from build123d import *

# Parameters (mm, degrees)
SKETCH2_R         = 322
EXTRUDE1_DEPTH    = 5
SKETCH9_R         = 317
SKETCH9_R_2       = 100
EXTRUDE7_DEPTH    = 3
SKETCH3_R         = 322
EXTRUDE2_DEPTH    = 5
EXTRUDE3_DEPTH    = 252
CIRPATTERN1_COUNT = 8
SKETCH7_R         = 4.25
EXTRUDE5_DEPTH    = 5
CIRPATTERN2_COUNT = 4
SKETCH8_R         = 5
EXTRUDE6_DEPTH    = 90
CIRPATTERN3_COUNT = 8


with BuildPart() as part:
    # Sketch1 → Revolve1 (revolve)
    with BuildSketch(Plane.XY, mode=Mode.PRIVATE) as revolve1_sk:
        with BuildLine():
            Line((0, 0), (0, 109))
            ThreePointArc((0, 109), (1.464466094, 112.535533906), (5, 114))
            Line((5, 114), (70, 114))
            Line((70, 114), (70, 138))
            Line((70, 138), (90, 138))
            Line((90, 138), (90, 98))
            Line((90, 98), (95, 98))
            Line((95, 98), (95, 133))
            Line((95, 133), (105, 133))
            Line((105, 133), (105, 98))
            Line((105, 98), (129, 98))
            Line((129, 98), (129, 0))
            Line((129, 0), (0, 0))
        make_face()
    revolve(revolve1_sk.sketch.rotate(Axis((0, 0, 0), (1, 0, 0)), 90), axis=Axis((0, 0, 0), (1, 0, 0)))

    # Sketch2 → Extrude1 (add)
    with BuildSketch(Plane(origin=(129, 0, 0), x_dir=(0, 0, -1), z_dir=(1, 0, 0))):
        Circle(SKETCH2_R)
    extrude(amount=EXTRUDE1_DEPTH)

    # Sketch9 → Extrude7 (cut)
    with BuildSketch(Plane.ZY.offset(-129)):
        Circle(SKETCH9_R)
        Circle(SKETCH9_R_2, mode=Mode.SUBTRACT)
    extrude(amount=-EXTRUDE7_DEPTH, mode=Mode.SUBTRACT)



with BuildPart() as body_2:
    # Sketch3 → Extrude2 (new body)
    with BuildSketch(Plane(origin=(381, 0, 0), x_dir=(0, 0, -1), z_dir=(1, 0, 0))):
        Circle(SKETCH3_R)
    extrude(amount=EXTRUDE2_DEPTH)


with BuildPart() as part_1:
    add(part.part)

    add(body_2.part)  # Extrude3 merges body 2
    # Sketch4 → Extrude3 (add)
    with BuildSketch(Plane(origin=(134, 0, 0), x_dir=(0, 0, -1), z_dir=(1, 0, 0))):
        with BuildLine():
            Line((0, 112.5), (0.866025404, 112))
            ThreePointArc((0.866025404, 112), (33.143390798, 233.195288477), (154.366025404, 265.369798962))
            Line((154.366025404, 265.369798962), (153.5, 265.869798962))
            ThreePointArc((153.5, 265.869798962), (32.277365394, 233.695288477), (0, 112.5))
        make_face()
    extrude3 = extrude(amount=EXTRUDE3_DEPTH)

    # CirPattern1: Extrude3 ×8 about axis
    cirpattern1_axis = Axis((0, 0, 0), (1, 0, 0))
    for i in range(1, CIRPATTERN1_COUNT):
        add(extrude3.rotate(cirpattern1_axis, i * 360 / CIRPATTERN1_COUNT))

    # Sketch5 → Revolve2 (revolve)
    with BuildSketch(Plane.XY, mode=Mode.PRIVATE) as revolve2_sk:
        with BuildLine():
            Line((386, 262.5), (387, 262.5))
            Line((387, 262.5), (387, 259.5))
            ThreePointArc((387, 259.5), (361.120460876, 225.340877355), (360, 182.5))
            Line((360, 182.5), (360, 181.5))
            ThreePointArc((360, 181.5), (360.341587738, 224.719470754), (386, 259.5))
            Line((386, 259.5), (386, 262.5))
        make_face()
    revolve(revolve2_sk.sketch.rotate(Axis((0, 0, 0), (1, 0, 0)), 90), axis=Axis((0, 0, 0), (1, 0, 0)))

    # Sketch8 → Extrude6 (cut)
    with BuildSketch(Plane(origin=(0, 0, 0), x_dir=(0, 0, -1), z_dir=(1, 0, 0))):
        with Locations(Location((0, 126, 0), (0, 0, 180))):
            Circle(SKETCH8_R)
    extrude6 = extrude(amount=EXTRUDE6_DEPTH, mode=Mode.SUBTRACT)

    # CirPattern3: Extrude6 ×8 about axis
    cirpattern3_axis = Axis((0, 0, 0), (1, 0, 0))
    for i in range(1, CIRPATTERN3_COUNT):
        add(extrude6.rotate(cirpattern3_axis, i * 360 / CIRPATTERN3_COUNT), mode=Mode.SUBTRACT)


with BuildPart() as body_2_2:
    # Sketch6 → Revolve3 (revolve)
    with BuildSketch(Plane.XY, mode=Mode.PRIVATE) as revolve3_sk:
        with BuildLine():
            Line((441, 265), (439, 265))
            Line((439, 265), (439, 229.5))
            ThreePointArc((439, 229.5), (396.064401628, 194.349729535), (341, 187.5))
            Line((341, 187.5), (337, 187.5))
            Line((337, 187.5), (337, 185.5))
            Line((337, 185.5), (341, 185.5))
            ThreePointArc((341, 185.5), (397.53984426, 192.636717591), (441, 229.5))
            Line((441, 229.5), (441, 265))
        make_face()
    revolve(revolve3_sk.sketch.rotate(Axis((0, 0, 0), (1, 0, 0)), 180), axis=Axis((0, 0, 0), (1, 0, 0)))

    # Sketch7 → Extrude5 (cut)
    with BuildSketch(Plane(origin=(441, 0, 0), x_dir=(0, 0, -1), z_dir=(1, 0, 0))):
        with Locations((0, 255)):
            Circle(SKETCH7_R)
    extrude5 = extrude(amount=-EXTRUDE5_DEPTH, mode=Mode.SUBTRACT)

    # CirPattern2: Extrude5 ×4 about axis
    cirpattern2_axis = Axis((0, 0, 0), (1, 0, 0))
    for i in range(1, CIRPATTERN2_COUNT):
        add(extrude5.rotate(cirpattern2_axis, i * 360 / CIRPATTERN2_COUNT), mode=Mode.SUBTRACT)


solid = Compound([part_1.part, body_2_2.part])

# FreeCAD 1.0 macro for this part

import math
import FreeCAD as App
import Part
import Sketcher
Q = App.Units.Quantity

doc = App.newDocument("Part")
params = doc.addObject("Spreadsheet::Sheet", "Params")
for row, (alias, value) in enumerate([
    ("sketch1_radius", "5 mm"),
    ("sketch1_width", "129 mm"),
    ("sketch1_width2", "24 mm"),
    ("sketch1_width3", "10 mm"),
    ("sketch1_width4", "5 mm"),
    ("revolution_angle", "360 deg"),
    ("sketch2_diameter", "644 mm"),
    ("pad1_length", "5 mm"),
    ("sketch3_diameter", "634 mm"),
    ("sketch3_diameter2", "200 mm"),
    ("pocket1_length", "3 mm"),
    ("sketch4_diameter", "644 mm"),
    ("pad2_length", "5 mm"),
    ("sketch5_radius", "125 mm"),
    ("sketch5_length", "1 mm"),
    ("pad3_length", "252 mm"),
    ("sketch6_radius", "70 mm"),
    ("sketch6_width", "1 mm"),
    ("sketch6_height", "3 mm"),
    ("revolution2_angle", "360 deg"),
    ("sketch7_diameter", "10 mm"),
    ("pocket2_length", "90 mm"),
    ("sketch8_radius", "100 mm"),
    ("sketch8_width", "2 mm"),
    ("sketch8_width2", "4 mm"),
    ("sketch8_height", "35.5 mm"),
    ("revolution3_angle", "360 deg"),
    ("sketch9_diameter", "8.5 mm"),
    ("pocket3_length", "5 mm"),
], start=1):
    params.set(f"A{row}", alias)
    params.set(f"B{row}", "=" + value)
    params.setAlias(f"B{row}", alias)

body = doc.addObject("PartDesign::Body", "Body")

# Sketch on XY plane
sketch1 = doc.addObject("Sketcher::SketchObject", "Sketch")
body.addObject(sketch1)
sketch1.AttachmentSupport = (doc.XY_Plane, [""])
sketch1.MapMode = "FlatFace"
sketch1.addGeometry(Part.LineSegment(App.Vector(0, 109, 0), App.Vector(0, 0, 0)), False)
sketch1.addGeometry(Part.LineSegment(App.Vector(0, 0, 0), App.Vector(129, 0, 0)), False)
sketch1.addGeometry(Part.LineSegment(App.Vector(129, 0, 0), App.Vector(129, 98, 0)), False)
sketch1.addGeometry(Part.LineSegment(App.Vector(129, 98, 0), App.Vector(105, 98, 0)), False)
sketch1.addGeometry(Part.LineSegment(App.Vector(105, 98, 0), App.Vector(105, 133, 0)), False)
sketch1.addGeometry(Part.LineSegment(App.Vector(105, 133, 0), App.Vector(95, 133, 0)), False)
sketch1.addGeometry(Part.LineSegment(App.Vector(95, 133, 0), App.Vector(95, 98, 0)), False)
sketch1.addGeometry(Part.LineSegment(App.Vector(95, 98, 0), App.Vector(90, 98, 0)), False)
sketch1.addGeometry(Part.LineSegment(App.Vector(90, 98, 0), App.Vector(90, 138, 0)), False)
sketch1.addGeometry(Part.LineSegment(App.Vector(90, 138, 0), App.Vector(70, 138, 0)), False)
sketch1.addGeometry(Part.LineSegment(App.Vector(70, 138, 0), App.Vector(70, 114, 0)), False)
sketch1.addGeometry(Part.LineSegment(App.Vector(70, 114, 0), App.Vector(5, 114, 0)), False)
sketch1.addGeometry(Part.ArcOfCircle(Part.Circle(App.Vector(5, 109, 0), App.Vector(0, 0, 1), 5), math.radians(90), math.radians(180)), False)
sketch1.addConstraint(Sketcher.Constraint("Coincident", 0, 2, 1, 1))
sketch1.addConstraint(Sketcher.Constraint("Coincident", 1, 2, 2, 1))
sketch1.addConstraint(Sketcher.Constraint("Coincident", 2, 2, 3, 1))
sketch1.addConstraint(Sketcher.Constraint("Coincident", 3, 2, 4, 1))
sketch1.addConstraint(Sketcher.Constraint("Coincident", 4, 2, 5, 1))
sketch1.addConstraint(Sketcher.Constraint("Coincident", 5, 2, 6, 1))
sketch1.addConstraint(Sketcher.Constraint("Coincident", 6, 2, 7, 1))
sketch1.addConstraint(Sketcher.Constraint("Coincident", 7, 2, 8, 1))
sketch1.addConstraint(Sketcher.Constraint("Coincident", 8, 2, 9, 1))
sketch1.addConstraint(Sketcher.Constraint("Coincident", 9, 2, 10, 1))
sketch1.addConstraint(Sketcher.Constraint("Coincident", 10, 2, 11, 1))
sketch1.addConstraint(Sketcher.Constraint("Tangent", 11, 2, 12, 1))
sketch1.addConstraint(Sketcher.Constraint("Tangent", 12, 2, 0, 1))
sketch1.addConstraint(Sketcher.Constraint("Vertical", 0))
sketch1.addConstraint(Sketcher.Constraint("Horizontal", 1))
sketch1.addConstraint(Sketcher.Constraint("Vertical", 2))
sketch1.addConstraint(Sketcher.Constraint("Horizontal", 3))
sketch1.addConstraint(Sketcher.Constraint("Vertical", 4))
sketch1.addConstraint(Sketcher.Constraint("Horizontal", 5))
sketch1.addConstraint(Sketcher.Constraint("Vertical", 6))
sketch1.addConstraint(Sketcher.Constraint("Horizontal", 7))
sketch1.addConstraint(Sketcher.Constraint("Vertical", 8))
sketch1.addConstraint(Sketcher.Constraint("Horizontal", 9))
sketch1.addConstraint(Sketcher.Constraint("Vertical", 10))
sketch1.addConstraint(Sketcher.Constraint("Horizontal", 11))
sketch1.addConstraint(Sketcher.Constraint("Coincident", 0, 2, -1, 1))
sketch1.addConstraint(Sketcher.Constraint("Horizontal", 3, 2, 6, 2))
sketch1.addConstraint(Sketcher.Constraint("Equal", 3, 10))
sketch1.addConstraint(Sketcher.Constraint("Radius", 12, 5.0))
sketch1.addConstraint(Sketcher.Constraint("DistanceX", 1, 1, 1, 2, 129.0))
sketch1.addConstraint(Sketcher.Constraint("DistanceX", 3, 2, 3, 1, 24.0))
sketch1.addConstraint(Sketcher.Constraint("DistanceX", 5, 2, 5, 1, 10.0))
sketch1.addConstraint(Sketcher.Constraint("DistanceX", 7, 2, 7, 1, 5.0))
sketch1.addConstraint(Sketcher.Constraint("DistanceX", 9, 2, 9, 1, 20.0))
sketch1.addConstraint(Sketcher.Constraint("DistanceY", 0, 2, 0, 1, 109.0))
sketch1.addConstraint(Sketcher.Constraint("DistanceY", 2, 1, 2, 2, 98.0))
sketch1.addConstraint(Sketcher.Constraint("DistanceY", 4, 1, 4, 2, 35.0))
sketch1.setExpression("Constraints[28]", "Params.sketch1_radius")
sketch1.setExpression("Constraints[29]", "Params.sketch1_width")
sketch1.setExpression("Constraints[30]", "Params.sketch1_width2")
sketch1.setExpression("Constraints[31]", "Params.sketch1_width3")
sketch1.setExpression("Constraints[32]", "Params.sketch1_width4")
revolution = doc.addObject("PartDesign::Revolution", "Revolution")
body.addObject(revolution)
revolution.Profile = sketch1
revolution.ReferenceAxis = (sketch1, ["H_Axis"])
revolution.setExpression("Angle", "Params.revolution_angle")

# Sketch on YZ plane
sketch2 = doc.addObject("Sketcher::SketchObject", "Sketch001")
body.addObject(sketch2)
sketch2.AttachmentSupport = (doc.YZ_Plane, [""])
sketch2.MapMode = "FlatFace"
sketch2.AttachmentOffset = App.Placement(App.Vector(0, 0, 129), App.Rotation())
sketch2.addGeometry(Part.Circle(App.Vector(0, 0, 0), App.Vector(0, 0, 1), 322), False)
sketch2.addConstraint(Sketcher.Constraint("Coincident", 0, 3, -1, 1))
sketch2.addConstraint(Sketcher.Constraint("Diameter", 0, 644.0))
sketch2.setExpression("Constraints[1]", "Params.sketch2_diameter")
pad1 = doc.addObject("PartDesign::Pad", "Pad")
body.addObject(pad1)
pad1.Profile = sketch2
pad1.setExpression("Length", "Params.pad1_length")

# Sketch on YZ plane
sketch3 = doc.addObject("Sketcher::SketchObject", "Sketch002")
body.addObject(sketch3)
sketch3.AttachmentSupport = (doc.YZ_Plane, [""])
sketch3.MapMode = "FlatFace"
sketch3.AttachmentOffset = App.Placement(App.Vector(0, 0, 129), App.Rotation())
sketch3.addGeometry(Part.Circle(App.Vector(0, 0, 0), App.Vector(0, 0, 1), 317), False)
sketch3.addGeometry(Part.Circle(App.Vector(0, 0, 0), App.Vector(0, 0, 1), 100), False)
sketch3.addConstraint(Sketcher.Constraint("Coincident", 0, 3, -1, 1))
sketch3.addConstraint(Sketcher.Constraint("Coincident", 1, 3, -1, 1))
sketch3.addConstraint(Sketcher.Constraint("Diameter", 0, 634.0))
sketch3.addConstraint(Sketcher.Constraint("Diameter", 1, 200.0))
sketch3.setExpression("Constraints[2]", "Params.sketch3_diameter")
sketch3.setExpression("Constraints[3]", "Params.sketch3_diameter2")
pocket1 = doc.addObject("PartDesign::Pocket", "Pocket")
body.addObject(pocket1)
pocket1.Profile = sketch3
pocket1.setExpression("Length", "Params.pocket1_length")
pocket1.Reversed = True
body2 = doc.addObject("PartDesign::Body", "Body001")

# Sketch on YZ plane
sketch4 = doc.addObject("Sketcher::SketchObject", "Sketch003")
body2.addObject(sketch4)
sketch4.AttachmentSupport = (doc.getObject("YZ_Plane001"), [""])
sketch4.MapMode = "FlatFace"
sketch4.AttachmentOffset = App.Placement(App.Vector(0, 0, 381), App.Rotation())
sketch4.addGeometry(Part.Circle(App.Vector(0, 0, 0), App.Vector(0, 0, 1), 322), False)
sketch4.addConstraint(Sketcher.Constraint("Coincident", 0, 3, -1, 1))
sketch4.addConstraint(Sketcher.Constraint("Diameter", 0, 644.0))
sketch4.setExpression("Constraints[1]", "Params.sketch4_diameter")
pad2 = doc.addObject("PartDesign::Pad", "Pad001")
body2.addObject(pad2)
pad2.Profile = sketch4
pad2.setExpression("Length", "Params.pad2_length")
body.AllowCompound = True
doc.recompute()

boolean = doc.addObject("PartDesign::Boolean", "Boolean")
body.addObject(boolean)
boolean.Type = "Fuse"
boolean.addObjects([body2])

# Sketch on YZ plane
sketch5 = doc.addObject("Sketcher::SketchObject", "Sketch004")
body.addObject(sketch5)
sketch5.AttachmentSupport = (doc.YZ_Plane, [""])
sketch5.MapMode = "FlatFace"
sketch5.AttachmentOffset = App.Placement(App.Vector(0, 0, 134), App.Rotation())
sketch5.addGeometry(Part.LineSegment(App.Vector(112.5, 0, 0), App.Vector(112, -0.9, 0)), False)
sketch5.addGeometry(Part.ArcOfCircle(Part.Circle(App.Vector(144.8, -121.5, 0), App.Vector(0, 0, 1), 125), math.radians(-15), math.radians(105)), False)
sketch5.addGeometry(Part.LineSegment(App.Vector(265.4, -154.4, 0), App.Vector(265.9, -153.5, 0)), False)
sketch5.addGeometry(Part.ArcOfCircle(Part.Circle(App.Vector(145.3, -120.6, 0), App.Vector(0, 0, 1), 125), math.radians(-15), math.radians(105)), False)
sketch5.addConstraint(Sketcher.Constraint("Coincident", 0, 2, 1, 2))
sketch5.addConstraint(Sketcher.Constraint("Coincident", 1, 1, 2, 1))
sketch5.addConstraint(Sketcher.Constraint("Coincident", 2, 2, 3, 1))
sketch5.addConstraint(Sketcher.Constraint("Coincident", 3, 2, 0, 1))
sketch5.addConstraint(Sketcher.Constraint("Equal", 1, 3))
sketch5.addConstraint(Sketcher.Constraint("PointOnObject", 3, 2, -1))
sketch5.addConstraint(Sketcher.Constraint("Parallel", 0, 2))
sketch5.addConstraint(Sketcher.Constraint("Equal", 0, 2))
sketch5.addConstraint(Sketcher.Constraint("Radius", 1, 125.0))
sketch5.addConstraint(Sketcher.Constraint("Angle", 0, Q("-120 deg")))
sketch5.addConstraint(Sketcher.Constraint("Distance", 0, 1.0))
sketch5.addConstraint(Sketcher.Constraint("DistanceX", -1, 1, 0, 2, 112.0))
sketch5.addConstraint(Sketcher.Constraint("DistanceY", 2, 2, -1, 1, 153.5))
sketch5.addConstraint(Sketcher.Constraint("DistanceX", -1, 1, 1, 1, 265.369799))
sketch5.setExpression("Constraints[8]", "Params.sketch5_radius")
sketch5.setExpression("Constraints[10]", "Params.sketch5_length")
pad3 = doc.addObject("PartDesign::Pad", "Pad002")
body.addObject(pad3)
pad3.Profile = sketch5
pad3.setExpression("Length", "Params.pad3_length")
doc.recompute()

polarpattern = doc.addObject("PartDesign::PolarPattern", "PolarPattern")
body.addObject(polarpattern)
polarpattern.Originals = [pad3]
polarpattern.Axis = (doc.X_Axis, [""])
polarpattern.Angle = 360
polarpattern.Occurrences = 8
body.Tip = polarpattern

# Sketch on XY plane
sketch6 = doc.addObject("Sketcher::SketchObject", "Sketch005")
body.addObject(sketch6)
sketch6.AttachmentSupport = (doc.XY_Plane, [""])
sketch6.MapMode = "FlatFace"
sketch6.addGeometry(Part.LineSegment(App.Vector(387, 262.5, 0), App.Vector(386, 262.5, 0)), False)
sketch6.addGeometry(Part.LineSegment(App.Vector(386, 262.5, 0), App.Vector(386, 259.5, 0)), False)
sketch6.addGeometry(Part.ArcOfCircle(Part.Circle(App.Vector(426.7, 202.6, 0), App.Vector(0, 0, 1), 70), math.radians(126), math.radians(198)), False)
sketch6.addGeometry(Part.LineSegment(App.Vector(360, 181.5, 0), App.Vector(360, 182.5, 0)), False)
sketch6.addGeometry(Part.ArcOfCircle(Part.Circle(App.Vector(427.2, 202.2, 0), App.Vector(0, 0, 1), 70), math.radians(125), math.radians(196)), False)
sketch6.addGeometry(Part.LineSegment(App.Vector(387, 259.5, 0), App.Vector(387, 262.5, 0)), False)
sketch6.addConstraint(Sketcher.Constraint("Coincident", 0, 2, 1, 1))
sketch6.addConstraint(Sketcher.Constraint("Coincident", 1, 2, 2, 1))
sketch6.addConstraint(Sketcher.Constraint("Coincident", 2, 2, 3, 1))
sketch6.addConstraint(Sketcher.Constraint("Coincident", 3, 2, 4, 2))
sketch6.addConstraint(Sketcher.Constraint("Coincident", 4, 1, 5, 1))
sketch6.addConstraint(Sketcher.Constraint("Coincident", 5, 2, 0, 1))
sketch6.addConstraint(Sketcher.Constraint("Horizontal", 0))
sketch6.addConstraint(Sketcher.Constraint("Vertical", 1))
sketch6.addConstraint(Sketcher.Constraint("Vertical", 3))
sketch6.addConstraint(Sketcher.Constraint("Vertical", 5))
sketch6.addConstraint(Sketcher.Constraint("Equal", 2, 4))
sketch6.addConstraint(Sketcher.Constraint("Horizontal", 1, 2, 4, 1))
sketch6.addConstraint(Sketcher.Constraint("Equal", 0, 3))
sketch6.addConstraint(Sketcher.Constraint("Radius", 2, 70.0))
sketch6.addConstraint(Sketcher.Constraint("DistanceX", 0, 2, 0, 1, 1.0))
sketch6.addConstraint(Sketcher.Constraint("DistanceY", 1, 2, 1, 1, 3.0))
sketch6.addConstraint(Sketcher.Constraint("DistanceX", -1, 1, 0, 2, 386.0))
sketch6.addConstraint(Sketcher.Constraint("DistanceX", -1, 1, 2, 2, 360.0))
sketch6.addConstraint(Sketcher.Constraint("DistanceY", 2, 2, 1, 2, 78.0))
sketch6.addConstraint(Sketcher.Constraint("DistanceY", -1, 1, 0, 2, 262.5))
sketch6.setExpression("Constraints[13]", "Params.sketch6_radius")
sketch6.setExpression("Constraints[14]", "Params.sketch6_width")
sketch6.setExpression("Constraints[15]", "Params.sketch6_height")
revolution2 = doc.addObject("PartDesign::Revolution", "Revolution001")
body.addObject(revolution2)
revolution2.Profile = sketch6
revolution2.ReferenceAxis = (sketch6, ["H_Axis"])
revolution2.setExpression("Angle", "Params.revolution2_angle")

# Sketch on YZ plane
sketch7 = doc.addObject("Sketcher::SketchObject", "Sketch006")
body.addObject(sketch7)
sketch7.AttachmentSupport = (doc.YZ_Plane, [""])
sketch7.MapMode = "FlatFace"
sketch7.addGeometry(Part.Circle(App.Vector(126, 0, 0), App.Vector(0, 0, 1), 5), False)
sketch7.addConstraint(Sketcher.Constraint("PointOnObject", 0, 3, -1))
sketch7.addConstraint(Sketcher.Constraint("Diameter", 0, 10.0))
sketch7.addConstraint(Sketcher.Constraint("DistanceX", -1, 1, 0, 3, 126.0))
sketch7.setExpression("Constraints[1]", "Params.sketch7_diameter")
pocket2 = doc.addObject("PartDesign::Pocket", "Pocket001")
body.addObject(pocket2)
pocket2.Profile = sketch7
pocket2.setExpression("Length", "Params.pocket2_length")
pocket2.Reversed = True
doc.recompute()

polarpattern2 = doc.addObject("PartDesign::PolarPattern", "PolarPattern001")
body.addObject(polarpattern2)
polarpattern2.Originals = [pocket2]
polarpattern2.Axis = (doc.X_Axis, [""])
polarpattern2.Angle = 360
polarpattern2.Occurrences = 8
body.Tip = polarpattern2
body3 = doc.addObject("PartDesign::Body", "Body002")

# Sketch on XY plane
sketch8 = doc.addObject("Sketcher::SketchObject", "Sketch007")
body3.addObject(sketch8)
sketch8.AttachmentSupport = (doc.getObject("XY_Plane002"), [""])
sketch8.MapMode = "FlatFace"
sketch8.addGeometry(Part.LineSegment(App.Vector(441, 265, 0), App.Vector(439, 265, 0)), False)
sketch8.addGeometry(Part.LineSegment(App.Vector(439, 265, 0), App.Vector(439, 229.5, 0)), False)
sketch8.addGeometry(Part.ArcOfCircle(Part.Circle(App.Vector(356.7, 286.3, 0), App.Vector(0, 0, 1), 100), math.radians(-99), math.radians(-35)), False)
sketch8.addGeometry(Part.LineSegment(App.Vector(341, 187.5, 0), App.Vector(337, 187.5, 0)), False)
sketch8.addGeometry(Part.LineSegment(App.Vector(337, 187.5, 0), App.Vector(337, 185.5, 0)), False)
sketch8.addGeometry(Part.LineSegment(App.Vector(337, 185.5, 0), App.Vector(341, 185.5, 0)), False)
sketch8.addGeometry(Part.ArcOfCircle(Part.Circle(App.Vector(357.3, 284.2, 0), App.Vector(0, 0, 1), 100), math.radians(-99), math.radians(-33)), False)
sketch8.addGeometry(Part.LineSegment(App.Vector(441, 229.5, 0), App.Vector(441, 265, 0)), False)
sketch8.addConstraint(Sketcher.Constraint("Coincident", 0, 2, 1, 1))
sketch8.addConstraint(Sketcher.Constraint("Coincident", 1, 2, 2, 2))
sketch8.addConstraint(Sketcher.Constraint("Coincident", 2, 1, 3, 1))
sketch8.addConstraint(Sketcher.Constraint("Coincident", 3, 2, 4, 1))
sketch8.addConstraint(Sketcher.Constraint("Coincident", 4, 2, 5, 1))
sketch8.addConstraint(Sketcher.Constraint("Coincident", 5, 2, 6, 1))
sketch8.addConstraint(Sketcher.Constraint("Coincident", 6, 2, 7, 1))
sketch8.addConstraint(Sketcher.Constraint("Coincident", 7, 2, 0, 1))
sketch8.addConstraint(Sketcher.Constraint("Horizontal", 0))
sketch8.addConstraint(Sketcher.Constraint("Vertical", 1))
sketch8.addConstraint(Sketcher.Constraint("Horizontal", 3))
sketch8.addConstraint(Sketcher.Constraint("Vertical", 4))
sketch8.addConstraint(Sketcher.Constraint("Horizontal", 5))
sketch8.addConstraint(Sketcher.Constraint("Vertical", 7))
sketch8.addConstraint(Sketcher.Constraint("Equal", 2, 6))
sketch8.addConstraint(Sketcher.Constraint("Horizontal", 1, 2, 6, 2))
sketch8.addConstraint(Sketcher.Constraint("Vertical", 2, 1, 5, 2))
sketch8.addConstraint(Sketcher.Constraint("Equal", 0, 4))
sketch8.addConstraint(Sketcher.Constraint("Radius", 2, 100.0))
sketch8.addConstraint(Sketcher.Constraint("DistanceX", 0, 2, 0, 1, 2.0))
sketch8.addConstraint(Sketcher.Constraint("DistanceX", 3, 2, 3, 1, 4.0))
sketch8.addConstraint(Sketcher.Constraint("DistanceY", 1, 2, 1, 1, 35.5))
sketch8.addConstraint(Sketcher.Constraint("DistanceX", -1, 1, 0, 2, 439.0))
sketch8.addConstraint(Sketcher.Constraint("DistanceY", -1, 1, 0, 2, 265.0))
sketch8.addConstraint(Sketcher.Constraint("DistanceX", -1, 1, 2, 1, 341.0))
sketch8.addConstraint(Sketcher.Constraint("DistanceY", 2, 1, 1, 2, 42.0))
sketch8.setExpression("Constraints[18]", "Params.sketch8_radius")
sketch8.setExpression("Constraints[19]", "Params.sketch8_width")
sketch8.setExpression("Constraints[20]", "Params.sketch8_width2")
sketch8.setExpression("Constraints[21]", "Params.sketch8_height")
revolution3 = doc.addObject("PartDesign::Revolution", "Revolution002")
body3.addObject(revolution3)
revolution3.Profile = sketch8
revolution3.ReferenceAxis = (sketch8, ["H_Axis"])
revolution3.setExpression("Angle", "Params.revolution3_angle")

# Sketch on YZ plane
sketch9 = doc.addObject("Sketcher::SketchObject", "Sketch008")
body3.addObject(sketch9)
sketch9.AttachmentSupport = (doc.getObject("YZ_Plane002"), [""])
sketch9.MapMode = "FlatFace"
sketch9.AttachmentOffset = App.Placement(App.Vector(0, 0, 441), App.Rotation())
sketch9.addGeometry(Part.Circle(App.Vector(255, 0, 0), App.Vector(0, 0, 1), 4.2), False)
sketch9.addConstraint(Sketcher.Constraint("PointOnObject", 0, 3, -1))
sketch9.addConstraint(Sketcher.Constraint("Diameter", 0, 8.5))
sketch9.addConstraint(Sketcher.Constraint("DistanceX", -1, 1, 0, 3, 255.0))
sketch9.setExpression("Constraints[1]", "Params.sketch9_diameter")
pocket3 = doc.addObject("PartDesign::Pocket", "Pocket002")
body3.addObject(pocket3)
pocket3.Profile = sketch9
pocket3.setExpression("Length", "Params.pocket3_length")
doc.recompute()

polarpattern3 = doc.addObject("PartDesign::PolarPattern", "PolarPattern002")
body3.addObject(polarpattern3)
polarpattern3.Originals = [pocket3]
polarpattern3.Axis = (doc.getObject("X_Axis002"), [""])
polarpattern3.Angle = 360
polarpattern3.Occurrences = 4
body3.Tip = polarpattern3

doc.recompute()
